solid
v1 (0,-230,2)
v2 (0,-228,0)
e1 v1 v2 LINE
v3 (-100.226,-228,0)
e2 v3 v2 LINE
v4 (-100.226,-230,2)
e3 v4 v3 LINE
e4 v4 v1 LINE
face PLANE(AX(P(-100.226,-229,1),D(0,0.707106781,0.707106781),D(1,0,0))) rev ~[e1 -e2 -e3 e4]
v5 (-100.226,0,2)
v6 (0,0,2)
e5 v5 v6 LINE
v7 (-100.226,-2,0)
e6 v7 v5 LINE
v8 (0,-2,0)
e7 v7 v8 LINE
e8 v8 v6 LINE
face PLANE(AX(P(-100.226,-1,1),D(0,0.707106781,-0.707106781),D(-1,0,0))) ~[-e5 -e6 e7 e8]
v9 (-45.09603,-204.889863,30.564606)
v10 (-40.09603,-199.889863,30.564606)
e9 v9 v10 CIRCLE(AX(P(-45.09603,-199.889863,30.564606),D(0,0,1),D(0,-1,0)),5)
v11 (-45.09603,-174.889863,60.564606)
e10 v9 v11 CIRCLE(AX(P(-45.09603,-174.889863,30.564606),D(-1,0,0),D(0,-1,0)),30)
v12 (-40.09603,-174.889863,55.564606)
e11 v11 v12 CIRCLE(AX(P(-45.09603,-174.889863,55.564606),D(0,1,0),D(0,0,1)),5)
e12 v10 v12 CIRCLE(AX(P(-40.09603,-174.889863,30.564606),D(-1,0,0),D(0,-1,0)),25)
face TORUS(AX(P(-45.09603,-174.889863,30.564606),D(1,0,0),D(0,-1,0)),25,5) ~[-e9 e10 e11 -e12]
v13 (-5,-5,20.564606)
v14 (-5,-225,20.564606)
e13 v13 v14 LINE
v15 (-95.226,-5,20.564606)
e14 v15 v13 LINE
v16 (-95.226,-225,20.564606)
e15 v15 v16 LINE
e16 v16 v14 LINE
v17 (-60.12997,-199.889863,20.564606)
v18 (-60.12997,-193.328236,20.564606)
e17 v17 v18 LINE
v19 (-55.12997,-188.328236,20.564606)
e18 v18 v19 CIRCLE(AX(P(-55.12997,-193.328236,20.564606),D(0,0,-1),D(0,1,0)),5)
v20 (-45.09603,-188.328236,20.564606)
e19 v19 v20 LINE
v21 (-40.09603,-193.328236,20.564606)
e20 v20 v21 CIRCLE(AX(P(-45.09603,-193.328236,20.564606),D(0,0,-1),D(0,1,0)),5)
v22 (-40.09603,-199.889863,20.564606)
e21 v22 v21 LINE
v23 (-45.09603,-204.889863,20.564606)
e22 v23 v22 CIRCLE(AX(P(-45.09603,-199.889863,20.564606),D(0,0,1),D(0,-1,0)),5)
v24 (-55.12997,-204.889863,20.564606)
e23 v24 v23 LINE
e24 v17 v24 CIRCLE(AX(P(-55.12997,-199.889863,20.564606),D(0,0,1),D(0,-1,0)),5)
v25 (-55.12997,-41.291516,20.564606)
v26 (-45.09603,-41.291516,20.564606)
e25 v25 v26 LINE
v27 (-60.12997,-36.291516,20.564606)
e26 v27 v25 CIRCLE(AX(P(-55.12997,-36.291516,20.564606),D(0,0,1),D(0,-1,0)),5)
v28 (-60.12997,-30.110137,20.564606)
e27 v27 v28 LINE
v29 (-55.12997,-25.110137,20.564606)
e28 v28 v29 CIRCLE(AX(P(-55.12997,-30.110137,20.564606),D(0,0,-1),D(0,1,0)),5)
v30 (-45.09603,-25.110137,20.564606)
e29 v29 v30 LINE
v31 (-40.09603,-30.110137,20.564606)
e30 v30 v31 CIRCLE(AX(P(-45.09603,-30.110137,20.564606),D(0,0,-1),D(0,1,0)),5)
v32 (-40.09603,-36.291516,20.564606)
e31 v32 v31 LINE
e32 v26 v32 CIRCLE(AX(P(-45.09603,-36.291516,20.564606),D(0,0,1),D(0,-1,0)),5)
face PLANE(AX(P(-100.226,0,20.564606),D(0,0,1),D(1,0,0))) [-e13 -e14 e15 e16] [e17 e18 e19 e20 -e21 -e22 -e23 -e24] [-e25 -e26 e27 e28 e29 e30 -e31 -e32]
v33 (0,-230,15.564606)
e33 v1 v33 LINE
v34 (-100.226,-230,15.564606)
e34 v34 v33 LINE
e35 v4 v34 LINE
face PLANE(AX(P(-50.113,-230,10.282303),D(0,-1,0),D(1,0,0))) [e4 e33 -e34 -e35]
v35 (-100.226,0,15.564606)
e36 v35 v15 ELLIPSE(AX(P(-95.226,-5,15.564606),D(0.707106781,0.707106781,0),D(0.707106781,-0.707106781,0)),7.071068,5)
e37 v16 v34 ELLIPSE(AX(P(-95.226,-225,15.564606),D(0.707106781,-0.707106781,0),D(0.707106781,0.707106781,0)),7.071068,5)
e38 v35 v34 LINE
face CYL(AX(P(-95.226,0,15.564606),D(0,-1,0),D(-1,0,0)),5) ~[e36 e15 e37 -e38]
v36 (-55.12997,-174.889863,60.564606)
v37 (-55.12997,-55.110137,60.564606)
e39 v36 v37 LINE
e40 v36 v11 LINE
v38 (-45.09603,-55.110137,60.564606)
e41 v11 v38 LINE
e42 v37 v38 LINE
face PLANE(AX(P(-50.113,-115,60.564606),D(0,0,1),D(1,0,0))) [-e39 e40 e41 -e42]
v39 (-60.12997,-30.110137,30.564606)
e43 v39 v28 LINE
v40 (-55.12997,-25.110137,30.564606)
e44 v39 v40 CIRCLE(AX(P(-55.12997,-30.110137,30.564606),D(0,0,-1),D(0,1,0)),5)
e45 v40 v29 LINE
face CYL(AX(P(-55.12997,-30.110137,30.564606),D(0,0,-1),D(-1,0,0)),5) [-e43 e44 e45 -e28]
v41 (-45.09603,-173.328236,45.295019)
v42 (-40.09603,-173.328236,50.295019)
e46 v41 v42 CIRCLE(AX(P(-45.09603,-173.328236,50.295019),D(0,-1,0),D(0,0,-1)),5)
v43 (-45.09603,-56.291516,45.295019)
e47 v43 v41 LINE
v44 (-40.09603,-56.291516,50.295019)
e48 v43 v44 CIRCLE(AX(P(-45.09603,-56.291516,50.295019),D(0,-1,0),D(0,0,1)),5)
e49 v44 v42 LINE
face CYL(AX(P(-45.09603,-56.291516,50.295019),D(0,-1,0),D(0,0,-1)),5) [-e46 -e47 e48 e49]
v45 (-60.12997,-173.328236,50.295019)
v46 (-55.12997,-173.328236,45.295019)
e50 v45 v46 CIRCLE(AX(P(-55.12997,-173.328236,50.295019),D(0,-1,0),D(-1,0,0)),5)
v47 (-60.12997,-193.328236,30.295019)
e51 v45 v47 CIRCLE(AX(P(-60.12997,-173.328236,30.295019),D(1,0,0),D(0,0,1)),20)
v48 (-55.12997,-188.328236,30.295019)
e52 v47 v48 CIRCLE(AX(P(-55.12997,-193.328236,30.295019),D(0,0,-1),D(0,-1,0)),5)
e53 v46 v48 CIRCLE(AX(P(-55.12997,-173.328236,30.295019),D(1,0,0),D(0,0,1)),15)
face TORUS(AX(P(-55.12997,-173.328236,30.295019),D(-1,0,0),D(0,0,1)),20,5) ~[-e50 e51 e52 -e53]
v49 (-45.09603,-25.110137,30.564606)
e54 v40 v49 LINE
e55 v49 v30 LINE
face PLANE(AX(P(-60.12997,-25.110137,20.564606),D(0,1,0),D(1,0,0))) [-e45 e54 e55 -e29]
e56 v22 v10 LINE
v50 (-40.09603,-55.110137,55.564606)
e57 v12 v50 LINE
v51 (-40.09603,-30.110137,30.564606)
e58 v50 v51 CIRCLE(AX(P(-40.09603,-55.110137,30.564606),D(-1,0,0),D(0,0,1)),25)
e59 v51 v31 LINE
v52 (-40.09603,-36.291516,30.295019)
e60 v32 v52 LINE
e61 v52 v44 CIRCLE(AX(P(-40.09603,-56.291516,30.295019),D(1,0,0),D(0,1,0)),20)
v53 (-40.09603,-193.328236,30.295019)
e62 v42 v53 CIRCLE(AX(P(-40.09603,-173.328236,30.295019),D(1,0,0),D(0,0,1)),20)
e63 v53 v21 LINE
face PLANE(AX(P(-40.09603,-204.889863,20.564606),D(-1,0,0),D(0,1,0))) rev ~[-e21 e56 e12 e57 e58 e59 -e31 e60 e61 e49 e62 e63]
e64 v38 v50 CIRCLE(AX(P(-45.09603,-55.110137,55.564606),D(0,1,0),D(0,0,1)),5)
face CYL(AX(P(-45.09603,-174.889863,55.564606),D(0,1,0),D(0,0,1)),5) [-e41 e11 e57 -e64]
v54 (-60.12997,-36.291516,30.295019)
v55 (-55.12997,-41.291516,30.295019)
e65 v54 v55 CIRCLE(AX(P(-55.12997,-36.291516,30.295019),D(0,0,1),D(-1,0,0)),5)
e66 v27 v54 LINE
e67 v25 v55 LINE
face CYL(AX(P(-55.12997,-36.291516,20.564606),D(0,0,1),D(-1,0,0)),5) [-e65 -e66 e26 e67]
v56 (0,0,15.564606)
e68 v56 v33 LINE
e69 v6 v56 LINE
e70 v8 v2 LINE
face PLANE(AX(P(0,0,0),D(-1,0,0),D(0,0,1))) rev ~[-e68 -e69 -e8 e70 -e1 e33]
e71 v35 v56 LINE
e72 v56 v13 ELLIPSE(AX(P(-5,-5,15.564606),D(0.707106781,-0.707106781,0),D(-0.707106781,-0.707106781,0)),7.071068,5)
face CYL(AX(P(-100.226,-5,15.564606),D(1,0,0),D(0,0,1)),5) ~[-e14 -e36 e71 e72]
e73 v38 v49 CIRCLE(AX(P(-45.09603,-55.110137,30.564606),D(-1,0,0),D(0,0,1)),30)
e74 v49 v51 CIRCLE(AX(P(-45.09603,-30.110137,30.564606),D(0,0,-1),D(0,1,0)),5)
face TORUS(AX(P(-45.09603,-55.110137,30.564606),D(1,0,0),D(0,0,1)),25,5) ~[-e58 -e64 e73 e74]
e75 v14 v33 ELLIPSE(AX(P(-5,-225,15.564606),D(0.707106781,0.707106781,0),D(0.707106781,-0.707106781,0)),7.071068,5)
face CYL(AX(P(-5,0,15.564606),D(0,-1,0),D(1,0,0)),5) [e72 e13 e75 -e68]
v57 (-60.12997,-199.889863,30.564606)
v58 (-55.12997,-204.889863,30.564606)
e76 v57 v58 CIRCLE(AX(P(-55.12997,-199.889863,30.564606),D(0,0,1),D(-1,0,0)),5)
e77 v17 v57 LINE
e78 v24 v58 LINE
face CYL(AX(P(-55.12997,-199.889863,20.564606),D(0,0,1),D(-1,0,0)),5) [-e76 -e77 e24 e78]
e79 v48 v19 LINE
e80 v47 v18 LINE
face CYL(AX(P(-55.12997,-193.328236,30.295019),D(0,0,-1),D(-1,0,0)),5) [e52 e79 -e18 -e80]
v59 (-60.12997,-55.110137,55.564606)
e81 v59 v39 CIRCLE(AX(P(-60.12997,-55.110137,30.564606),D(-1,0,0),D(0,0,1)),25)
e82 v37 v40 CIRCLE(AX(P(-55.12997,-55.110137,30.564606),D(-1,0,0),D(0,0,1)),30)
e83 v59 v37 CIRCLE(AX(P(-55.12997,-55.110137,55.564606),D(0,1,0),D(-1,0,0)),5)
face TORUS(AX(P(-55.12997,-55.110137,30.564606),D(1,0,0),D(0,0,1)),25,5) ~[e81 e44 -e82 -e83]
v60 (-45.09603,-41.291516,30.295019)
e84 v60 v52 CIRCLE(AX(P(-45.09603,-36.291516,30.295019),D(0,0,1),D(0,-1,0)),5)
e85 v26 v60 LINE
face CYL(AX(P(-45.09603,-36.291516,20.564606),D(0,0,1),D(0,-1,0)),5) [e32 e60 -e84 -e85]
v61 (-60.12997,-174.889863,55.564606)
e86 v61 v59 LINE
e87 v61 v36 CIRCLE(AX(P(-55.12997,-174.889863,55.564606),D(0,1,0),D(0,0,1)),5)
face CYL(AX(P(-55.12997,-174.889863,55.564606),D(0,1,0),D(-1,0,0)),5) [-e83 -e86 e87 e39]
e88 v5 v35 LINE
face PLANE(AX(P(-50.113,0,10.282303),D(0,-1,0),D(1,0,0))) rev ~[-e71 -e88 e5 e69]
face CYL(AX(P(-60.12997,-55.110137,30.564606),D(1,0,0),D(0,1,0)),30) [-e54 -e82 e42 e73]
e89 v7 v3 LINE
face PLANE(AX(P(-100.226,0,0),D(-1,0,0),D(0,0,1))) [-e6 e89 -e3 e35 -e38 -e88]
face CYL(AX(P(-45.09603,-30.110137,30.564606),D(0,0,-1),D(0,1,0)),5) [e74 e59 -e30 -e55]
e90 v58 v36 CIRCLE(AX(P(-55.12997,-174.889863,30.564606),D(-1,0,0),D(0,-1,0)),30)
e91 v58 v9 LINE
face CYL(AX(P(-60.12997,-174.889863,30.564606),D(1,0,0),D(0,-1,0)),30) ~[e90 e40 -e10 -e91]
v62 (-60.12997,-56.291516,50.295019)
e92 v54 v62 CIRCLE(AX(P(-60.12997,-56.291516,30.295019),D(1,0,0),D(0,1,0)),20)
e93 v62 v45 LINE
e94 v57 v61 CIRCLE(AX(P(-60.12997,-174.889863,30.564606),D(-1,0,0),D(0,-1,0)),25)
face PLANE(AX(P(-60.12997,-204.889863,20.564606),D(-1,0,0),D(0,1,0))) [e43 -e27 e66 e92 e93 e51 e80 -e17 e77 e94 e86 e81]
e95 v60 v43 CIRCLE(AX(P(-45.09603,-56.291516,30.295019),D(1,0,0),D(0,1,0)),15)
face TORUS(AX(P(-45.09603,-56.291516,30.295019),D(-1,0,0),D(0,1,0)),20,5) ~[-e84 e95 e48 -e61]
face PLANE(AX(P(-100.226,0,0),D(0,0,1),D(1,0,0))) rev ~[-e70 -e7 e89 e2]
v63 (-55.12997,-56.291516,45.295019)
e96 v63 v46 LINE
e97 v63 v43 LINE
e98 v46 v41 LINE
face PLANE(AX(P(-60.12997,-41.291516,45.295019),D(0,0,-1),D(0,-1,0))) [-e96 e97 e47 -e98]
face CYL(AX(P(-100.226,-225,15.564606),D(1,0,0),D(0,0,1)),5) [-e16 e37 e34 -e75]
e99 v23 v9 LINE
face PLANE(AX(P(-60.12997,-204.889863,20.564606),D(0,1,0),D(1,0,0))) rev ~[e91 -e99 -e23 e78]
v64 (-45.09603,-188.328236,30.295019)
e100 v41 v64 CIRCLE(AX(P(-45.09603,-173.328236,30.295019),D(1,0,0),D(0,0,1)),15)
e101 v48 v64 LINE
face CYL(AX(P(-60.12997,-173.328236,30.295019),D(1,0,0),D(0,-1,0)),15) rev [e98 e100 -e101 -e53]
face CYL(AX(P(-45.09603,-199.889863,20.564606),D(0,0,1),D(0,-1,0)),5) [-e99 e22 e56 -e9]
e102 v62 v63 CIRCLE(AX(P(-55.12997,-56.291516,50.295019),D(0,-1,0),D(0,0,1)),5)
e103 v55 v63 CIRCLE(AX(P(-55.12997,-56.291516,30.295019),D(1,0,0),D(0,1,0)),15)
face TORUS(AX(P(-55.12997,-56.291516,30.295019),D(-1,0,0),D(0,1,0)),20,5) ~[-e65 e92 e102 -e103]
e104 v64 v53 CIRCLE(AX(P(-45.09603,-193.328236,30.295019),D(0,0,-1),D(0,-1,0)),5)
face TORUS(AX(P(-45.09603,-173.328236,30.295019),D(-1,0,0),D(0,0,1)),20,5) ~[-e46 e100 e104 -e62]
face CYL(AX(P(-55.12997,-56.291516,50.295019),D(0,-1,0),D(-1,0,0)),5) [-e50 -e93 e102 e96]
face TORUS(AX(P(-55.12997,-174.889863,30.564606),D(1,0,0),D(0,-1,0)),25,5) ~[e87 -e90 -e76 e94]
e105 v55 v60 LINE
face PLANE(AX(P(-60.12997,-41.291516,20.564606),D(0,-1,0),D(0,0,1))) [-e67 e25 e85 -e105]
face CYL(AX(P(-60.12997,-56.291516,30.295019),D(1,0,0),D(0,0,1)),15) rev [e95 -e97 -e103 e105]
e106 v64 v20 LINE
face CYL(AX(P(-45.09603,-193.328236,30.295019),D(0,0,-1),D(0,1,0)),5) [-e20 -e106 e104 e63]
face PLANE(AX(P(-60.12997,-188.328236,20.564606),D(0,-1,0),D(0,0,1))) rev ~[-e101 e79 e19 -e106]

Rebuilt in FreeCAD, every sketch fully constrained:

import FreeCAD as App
import Part
import Sketcher
Q = App.Units.Quantity


def edges_at(feature, points):
    """Names of the edges that pass closest to the given points."""
    edges = feature.Shape.Edges
    near = lambda p: min(range(len(edges)), key=lambda i: edges[i].distToShape(Part.Vertex(*p))[0])
    return sorted({f"Edge{near(p) + 1}" for p in points})


def add_polygon(sketch, points):
    """Adds a closed chain of lines whose ends are joined by coincident constraints."""
    first, n = sketch.GeometryCount, len(points)
    for a, b in zip(points, points[1:] + points[:1]):
        sketch.addGeometry(Part.LineSegment(App.Vector(*a, 0), App.Vector(*b, 0)), False)
    for i in range(n):
        sketch.addConstraint(Sketcher.Constraint("Coincident", first + i, 2, first + (i + 1) % n, 1))

doc = App.newDocument("Part")
params = doc.addObject("Spreadsheet::Sheet", "Params")
for row, (alias, value) in enumerate([
    ("pad1_length", "230 mm"),
    ("fillet_radius", "5 mm"),
    ("pad2_length", "40 mm"),
    ("fillet2_radius", "30 mm"),
    ("pocket1_length", "25 mm"),
    ("fillet3_radius", "15 mm"),
    ("fillet4_radius", "5 mm"),
    ("chamfer_size", "2 mm"),
    ("chamfer2_size", "2 mm"),
], start=1):
    params.set(f"A{row}", alias)
    params.set(f"B{row}", "=" + value)
    params.setAlias(f"B{row}", alias)

body = doc.addObject("PartDesign::Body", "Body")

# Sketch on XZ plane
sketch1 = body.newObject("Sketcher::SketchObject", "Sketch")
sketch1.AttachmentSupport = (doc.getObject("XZ_Plane"), [""])
sketch1.MapMode = "FlatFace"
add_polygon(sketch1, [(-100, 21), (-100, 0), (0, 0), (0, 21)])  # lines 0-3
sketch1.addConstraint([
    Sketcher.Constraint("Vertical", 0),
    Sketcher.Constraint("Horizontal", 1),
    Sketcher.Constraint("Vertical", 2),
    Sketcher.Constraint("Horizontal", 3),
    Sketcher.Constraint("Coincident", 1, 2, -1, 1),
    Sketcher.Constraint("DistanceX", 1, 1, 1, 2, Q("100.226 mm")),
    Sketcher.Constraint("DistanceY", 0, 2, 0, 1, Q("20.564606 mm")),
])
pad1 = body.newObject("PartDesign::Pad", "Pad")
pad1.Profile = sketch1
pad1.setExpression("Length", "Params.pad1_length")
doc.recompute()

fillet = body.newObject("PartDesign::Fillet", "Fillet")
fillet.Base = (pad1, edges_at(pad1, [
    (-50.113, -230, 20.565),
    (0, -115, 20.565),
    (-100.226, -115, 20.565),
    (-50.113, 0, 20.565),
]))
fillet.setExpression("Radius", "Params.fillet_radius")

# Sketch on XY plane
sketch2 = body.newObject("Sketcher::SketchObject", "Sketch001")
sketch2.AttachmentSupport = (doc.getObject("XY_Plane"), [""])
sketch2.MapMode = "FlatFace"
sketch2.AttachmentOffset = App.Placement(App.Vector(0, 0, 20.564606), App.Rotation())
add_polygon(sketch2, [(-60, -25), (-60, -205), (-40, -205), (-40, -25)])  # lines 0-3
sketch2.addConstraint([
    Sketcher.Constraint("Vertical", 0),
    Sketcher.Constraint("Horizontal", 1),
    Sketcher.Constraint("Vertical", 2),
    Sketcher.Constraint("Horizontal", 3),
    Sketcher.Constraint("DistanceX", 1, 1, 1, 2, Q("20.033941 mm")),
    Sketcher.Constraint("DistanceY", 0, 2, 0, 1, Q("179.779727 mm")),
    Sketcher.Constraint("DistanceX", 0, 2, -1, 1, Q("60.12997 mm")),
    Sketcher.Constraint("DistanceY", 0, 2, -1, 1, Q("204.889863 mm")),
])
pad2 = body.newObject("PartDesign::Pad", "Pad001")
pad2.Profile = sketch2
pad2.setExpression("Length", "Params.pad2_length")
doc.recompute()

fillet2 = body.newObject("PartDesign::Fillet", "Fillet001")
fillet2.Base = (pad2, edges_at(pad2, [(-50.113, -25.11, 60.565), (-50.113, -204.89, 60.565)]))
fillet2.setExpression("Radius", "Params.fillet2_radius")

# Sketch on YZ plane
sketch3 = body.newObject("Sketcher::SketchObject", "Sketch002")
sketch3.AttachmentSupport = (doc.getObject("YZ_Plane"), [""])
sketch3.MapMode = "FlatFace"
sketch3.AttachmentOffset = App.Placement(App.Vector(0, 0, -60.12997), App.Rotation())
add_polygon(sketch3, [(-41, 45), (-41, 21), (-188, 21), (-188, 45)])  # lines 0-3
sketch3.addConstraint([
    Sketcher.Constraint("Vertical", 0),
    Sketcher.Constraint("Horizontal", 1),
    Sketcher.Constraint("Vertical", 2),
    Sketcher.Constraint("Horizontal", 3),
    Sketcher.Constraint("DistanceX", 1, 2, 1, 1, Q("147.03672 mm")),
    Sketcher.Constraint("DistanceY", 0, 2, 0, 1, Q("24.730412 mm")),
    Sketcher.Constraint("DistanceY", -1, 1, 2, 2, Q("45.295019 mm")),
    Sketcher.Constraint("DistanceX", 0, 2, -1, 1, Q("41.291516 mm")),
])
pocket1 = body.newObject("PartDesign::Pocket", "Pocket")
pocket1.Profile = sketch3
pocket1.setExpression("Length", "Params.pocket1_length")
pocket1.Reversed = True
doc.recompute()

fillet3 = body.newObject("PartDesign::Fillet", "Fillet002")
fillet3.Base = (pocket1, edges_at(pocket1, [(-50.113, -188.328, 45.295), (-50.113, -41.292, 45.295)]))
fillet3.setExpression("Radius", "Params.fillet3_radius")
doc.recompute()

fillet4 = body.newObject("PartDesign::Fillet", "Fillet003")
fillet4.Base = (fillet3, edges_at(fillet3, [
    (-60.13, -115, 60.565),
    (-60.13, -33.897, 51.778),
    (-60.13, -114.81, 45.295),
    (-60.13, -45.685, 40.902),
    (-60.13, -183.935, 40.902),
    (-40.096, -115, 60.565),
    (-40.096, -196.103, 51.778),
    (-40.096, -114.81, 45.295),
]))
fillet4.setExpression("Radius", "Params.fillet4_radius")
doc.recompute()

chamfer = body.newObject("PartDesign::Chamfer", "Chamfer")
chamfer.Base = (fillet4, edges_at(fillet4, [(-50.113, -230, 0)]))
chamfer.setExpression("Size", "Params.chamfer_size")
doc.recompute()

chamfer2 = body.newObject("PartDesign::Chamfer", "Chamfer001")
chamfer2.Base = (chamfer, edges_at(chamfer, [(-50.113, 0, 0)]))
chamfer2.setExpression("Size", "Params.chamfer2_size")

doc.recompute()
